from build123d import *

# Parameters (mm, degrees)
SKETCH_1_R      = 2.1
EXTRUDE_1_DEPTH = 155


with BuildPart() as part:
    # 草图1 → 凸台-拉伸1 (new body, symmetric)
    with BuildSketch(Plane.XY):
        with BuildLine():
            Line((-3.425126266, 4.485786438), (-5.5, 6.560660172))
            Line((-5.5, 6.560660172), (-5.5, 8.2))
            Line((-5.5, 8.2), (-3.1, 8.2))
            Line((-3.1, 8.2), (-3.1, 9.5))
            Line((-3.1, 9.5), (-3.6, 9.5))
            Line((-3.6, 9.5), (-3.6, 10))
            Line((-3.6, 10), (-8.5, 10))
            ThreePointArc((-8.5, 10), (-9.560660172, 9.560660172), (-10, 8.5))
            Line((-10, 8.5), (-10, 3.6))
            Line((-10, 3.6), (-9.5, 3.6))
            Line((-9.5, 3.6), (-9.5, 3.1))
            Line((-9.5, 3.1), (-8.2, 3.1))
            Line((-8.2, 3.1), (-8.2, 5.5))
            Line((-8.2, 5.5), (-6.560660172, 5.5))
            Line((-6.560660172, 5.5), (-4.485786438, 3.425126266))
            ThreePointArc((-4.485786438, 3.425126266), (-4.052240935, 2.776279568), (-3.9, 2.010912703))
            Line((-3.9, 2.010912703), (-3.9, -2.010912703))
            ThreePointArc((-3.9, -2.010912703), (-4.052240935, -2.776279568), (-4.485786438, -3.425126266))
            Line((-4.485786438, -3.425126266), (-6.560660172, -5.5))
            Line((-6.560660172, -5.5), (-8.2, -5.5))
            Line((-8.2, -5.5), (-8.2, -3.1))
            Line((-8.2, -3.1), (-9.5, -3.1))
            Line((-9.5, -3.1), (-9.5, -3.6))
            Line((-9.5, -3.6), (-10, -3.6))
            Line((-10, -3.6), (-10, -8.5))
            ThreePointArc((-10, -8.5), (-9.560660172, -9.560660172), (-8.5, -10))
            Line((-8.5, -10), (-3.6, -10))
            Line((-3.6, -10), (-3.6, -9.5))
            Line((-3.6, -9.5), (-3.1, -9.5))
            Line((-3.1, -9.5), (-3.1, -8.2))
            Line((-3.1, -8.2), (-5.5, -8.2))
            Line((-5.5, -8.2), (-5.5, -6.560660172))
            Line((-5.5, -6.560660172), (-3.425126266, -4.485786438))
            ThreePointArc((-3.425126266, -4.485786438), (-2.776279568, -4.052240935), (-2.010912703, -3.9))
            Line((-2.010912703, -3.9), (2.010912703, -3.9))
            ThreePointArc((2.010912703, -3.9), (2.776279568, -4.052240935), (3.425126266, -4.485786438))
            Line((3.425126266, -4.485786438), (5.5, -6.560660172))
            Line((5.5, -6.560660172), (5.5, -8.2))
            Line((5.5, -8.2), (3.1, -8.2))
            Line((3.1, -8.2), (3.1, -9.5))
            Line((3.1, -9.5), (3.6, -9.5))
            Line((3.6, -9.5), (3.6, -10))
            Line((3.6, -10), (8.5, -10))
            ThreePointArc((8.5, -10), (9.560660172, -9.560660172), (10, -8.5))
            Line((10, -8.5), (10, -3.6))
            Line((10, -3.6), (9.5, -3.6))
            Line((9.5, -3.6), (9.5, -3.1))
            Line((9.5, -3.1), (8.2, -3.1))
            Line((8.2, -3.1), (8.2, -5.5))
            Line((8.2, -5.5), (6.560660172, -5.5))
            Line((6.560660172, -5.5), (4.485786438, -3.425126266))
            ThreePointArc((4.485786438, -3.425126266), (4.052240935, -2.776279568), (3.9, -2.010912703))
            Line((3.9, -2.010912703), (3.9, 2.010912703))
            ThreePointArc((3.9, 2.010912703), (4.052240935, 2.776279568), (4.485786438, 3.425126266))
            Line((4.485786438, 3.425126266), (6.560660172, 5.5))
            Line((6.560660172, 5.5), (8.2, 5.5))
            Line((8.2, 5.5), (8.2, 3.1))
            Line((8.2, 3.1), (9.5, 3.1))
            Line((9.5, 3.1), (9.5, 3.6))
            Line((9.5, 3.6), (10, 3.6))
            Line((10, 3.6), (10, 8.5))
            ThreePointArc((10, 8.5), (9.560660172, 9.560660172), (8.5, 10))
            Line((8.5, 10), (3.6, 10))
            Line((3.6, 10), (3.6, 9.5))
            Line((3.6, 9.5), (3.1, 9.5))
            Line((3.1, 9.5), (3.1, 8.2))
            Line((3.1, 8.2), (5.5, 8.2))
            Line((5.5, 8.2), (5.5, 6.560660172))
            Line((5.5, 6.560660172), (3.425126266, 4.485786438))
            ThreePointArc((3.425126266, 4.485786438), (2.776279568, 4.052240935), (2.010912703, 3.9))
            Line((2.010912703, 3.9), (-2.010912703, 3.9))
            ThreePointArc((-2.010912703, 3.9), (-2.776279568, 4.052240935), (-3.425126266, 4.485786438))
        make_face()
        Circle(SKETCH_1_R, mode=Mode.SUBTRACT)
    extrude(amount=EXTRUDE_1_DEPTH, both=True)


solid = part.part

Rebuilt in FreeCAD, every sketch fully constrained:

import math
import FreeCAD as App
import Part
import Sketcher

doc = App.newDocument("Part")
body = doc.addObject("PartDesign::Body", "Body")

# Sketch on XY plane
sketch1 = body.newObject("Sketcher::SketchObject", "Sketch")
sketch1.AttachmentSupport = (doc.getObject("XY_Plane"), [""])
sketch1.MapMode = "FlatFace"
sketch1.addGeometry([
    Part.LineSegment(App.Vector(-3.4, 4.5, 0), App.Vector(-5.5, 6.6, 0)),  # 0
    Part.LineSegment(App.Vector(-5.5, 6.6, 0), App.Vector(-5.5, 8.2, 0)),  # 1
    Part.LineSegment(App.Vector(-5.5, 8.2, 0), App.Vector(-3.1, 8.2, 0)),  # 2
    Part.LineSegment(App.Vector(-3.1, 8.2, 0), App.Vector(-3.1, 9.5, 0)),  # 3
    Part.LineSegment(App.Vector(-3.1, 9.5, 0), App.Vector(-3.6, 9.5, 0)),  # 4
    Part.LineSegment(App.Vector(-3.6, 9.5, 0), App.Vector(-3.6, 10, 0)),  # 5
    Part.LineSegment(App.Vector(-3.6, 10, 0), App.Vector(-8.5, 10, 0)),  # 6
    Part.ArcOfCircle(Part.Circle(App.Vector(-8.5, 8.5, 0), App.Vector(0, 0, 1), 1.5), math.radians(90), math.radians(180)),  # 7
    Part.LineSegment(App.Vector(-10, 8.5, 0), App.Vector(-10, 3.6, 0)),  # 8
    Part.LineSegment(App.Vector(-10, 3.6, 0), App.Vector(-9.5, 3.6, 0)),  # 9
    Part.LineSegment(App.Vector(-9.5, 3.6, 0), App.Vector(-9.5, 3.1, 0)),  # 10
    Part.LineSegment(App.Vector(-9.5, 3.1, 0), App.Vector(-8.2, 3.1, 0)),  # 11
    Part.LineSegment(App.Vector(-8.2, 3.1, 0), App.Vector(-8.2, 5.5, 0)),  # 12
    Part.LineSegment(App.Vector(-8.2, 5.5, 0), App.Vector(-6.6, 5.5, 0)),  # 13
    Part.LineSegment(App.Vector(-6.6, 5.5, 0), App.Vector(-4.5, 3.4, 0)),  # 14
    Part.ArcOfCircle(Part.Circle(App.Vector(-5.9, 2, 0), App.Vector(0, 0, 1), 2), math.radians(0), math.radians(45)),  # 15
    Part.LineSegment(App.Vector(-3.9, 2, 0), App.Vector(-3.9, -2, 0)),  # 16
    Part.ArcOfCircle(Part.Circle(App.Vector(-5.9, -2, 0), App.Vector(0, 0, 1), 2), math.radians(-45), math.radians(0)),  # 17
    Part.LineSegment(App.Vector(-4.5, -3.4, 0), App.Vector(-6.6, -5.5, 0)),  # 18
    Part.LineSegment(App.Vector(-6.6, -5.5, 0), App.Vector(-8.2, -5.5, 0)),  # 19
    Part.LineSegment(App.Vector(-8.2, -5.5, 0), App.Vector(-8.2, -3.1, 0)),  # 20
    Part.LineSegment(App.Vector(-8.2, -3.1, 0), App.Vector(-9.5, -3.1, 0)),  # 21
    Part.LineSegment(App.Vector(-9.5, -3.1, 0), App.Vector(-9.5, -3.6, 0)),  # 22
    Part.LineSegment(App.Vector(-9.5, -3.6, 0), App.Vector(-10, -3.6, 0)),  # 23
    Part.LineSegment(App.Vector(-10, -3.6, 0), App.Vector(-10, -8.5, 0)),  # 24
    Part.ArcOfCircle(Part.Circle(App.Vector(-8.5, -8.5, 0), App.Vector(0, 0, 1), 1.5), math.radians(180), math.radians(270)),  # 25
    Part.LineSegment(App.Vector(-8.5, -10, 0), App.Vector(-3.6, -10, 0)),  # 26
    Part.LineSegment(App.Vector(-3.6, -10, 0), App.Vector(-3.6, -9.5, 0)),  # 27
    Part.LineSegment(App.Vector(-3.6, -9.5, 0), App.Vector(-3.1, -9.5, 0)),  # 28
    Part.LineSegment(App.Vector(-3.1, -9.5, 0), App.Vector(-3.1, -8.2, 0)),  # 29
    Part.LineSegment(App.Vector(-3.1, -8.2, 0), App.Vector(-5.5, -8.2, 0)),  # 30
    Part.LineSegment(App.Vector(-5.5, -8.2, 0), App.Vector(-5.5, -6.6, 0)),  # 31
    Part.LineSegment(App.Vector(-5.5, -6.6, 0), App.Vector(-3.4, -4.5, 0)),  # 32
    Part.ArcOfCircle(Part.Circle(App.Vector(-2, -5.9, 0), App.Vector(0, 0, 1), 2), math.radians(90), math.radians(135)),  # 33
    Part.LineSegment(App.Vector(-2, -3.9, 0), App.Vector(2, -3.9, 0)),  # 34
    Part.ArcOfCircle(Part.Circle(App.Vector(2, -5.9, 0), App.Vector(0, 0, 1), 2), math.radians(45), math.radians(90)),  # 35
    Part.LineSegment(App.Vector(3.4, -4.5, 0), App.Vector(5.5, -6.6, 0)),  # 36
    Part.LineSegment(App.Vector(5.5, -6.6, 0), App.Vector(5.5, -8.2, 0)),  # 37
    Part.LineSegment(App.Vector(5.5, -8.2, 0), App.Vector(3.1, -8.2, 0)),  # 38
    Part.LineSegment(App.Vector(3.1, -8.2, 0), App.Vector(3.1, -9.5, 0)),  # 39
    Part.LineSegment(App.Vector(3.1, -9.5, 0), App.Vector(3.6, -9.5, 0)),  # 40
    Part.LineSegment(App.Vector(3.6, -9.5, 0), App.Vector(3.6, -10, 0)),  # 41
    Part.LineSegment(App.Vector(3.6, -10, 0), App.Vector(8.5, -10, 0)),  # 42
    Part.ArcOfCircle(Part.Circle(App.Vector(8.5, -8.5, 0), App.Vector(0, 0, 1), 1.5), math.radians(-90), math.radians(0)),  # 43
    Part.LineSegment(App.Vector(10, -8.5, 0), App.Vector(10, -3.6, 0)),  # 44
    Part.LineSegment(App.Vector(10, -3.6, 0), App.Vector(9.5, -3.6, 0)),  # 45
    Part.LineSegment(App.Vector(9.5, -3.6, 0), App.Vector(9.5, -3.1, 0)),  # 46
    Part.LineSegment(App.Vector(9.5, -3.1, 0), App.Vector(8.2, -3.1, 0)),  # 47
    Part.LineSegment(App.Vector(8.2, -3.1, 0), App.Vector(8.2, -5.5, 0)),  # 48
    Part.LineSegment(App.Vector(8.2, -5.5, 0), App.Vector(6.6, -5.5, 0)),  # 49
    Part.LineSegment(App.Vector(6.6, -5.5, 0), App.Vector(4.5, -3.4, 0)),  # 50
    Part.ArcOfCircle(Part.Circle(App.Vector(5.9, -2, 0), App.Vector(0, 0, 1), 2), math.radians(180), math.radians(225)),  # 51
    Part.LineSegment(App.Vector(3.9, -2, 0), App.Vector(3.9, 2, 0)),  # 52
    Part.ArcOfCircle(Part.Circle(App.Vector(5.9, 2, 0), App.Vector(0, 0, 1), 2), math.radians(135), math.radians(180)),  # 53
    Part.LineSegment(App.Vector(4.5, 3.4, 0), App.Vector(6.6, 5.5, 0)),  # 54
    Part.LineSegment(App.Vector(6.6, 5.5, 0), App.Vector(8.2, 5.5, 0)),  # 55
    Part.LineSegment(App.Vector(8.2, 5.5, 0), App.Vector(8.2, 3.1, 0)),  # 56
    Part.LineSegment(App.Vector(8.2, 3.1, 0), App.Vector(9.5, 3.1, 0)),  # 57
    Part.LineSegment(App.Vector(9.5, 3.1, 0), App.Vector(9.5, 3.6, 0)),  # 58
    Part.LineSegment(App.Vector(9.5, 3.6, 0), App.Vector(10, 3.6, 0)),  # 59
    Part.LineSegment(App.Vector(10, 3.6, 0), App.Vector(10, 8.5, 0)),  # 60
    Part.ArcOfCircle(Part.Circle(App.Vector(8.5, 8.5, 0), App.Vector(0, 0, 1), 1.5), math.radians(0), math.radians(90)),  # 61
    Part.LineSegment(App.Vector(8.5, 10, 0), App.Vector(3.6, 10, 0)),  # 62
    Part.LineSegment(App.Vector(3.6, 10, 0), App.Vector(3.6, 9.5, 0)),  # 63
    Part.LineSegment(App.Vector(3.6, 9.5, 0), App.Vector(3.1, 9.5, 0)),  # 64
    Part.LineSegment(App.Vector(3.1, 9.5, 0), App.Vector(3.1, 8.2, 0)),  # 65
    Part.LineSegment(App.Vector(3.1, 8.2, 0), App.Vector(5.5, 8.2, 0)),  # 66
    Part.LineSegment(App.Vector(5.5, 8.2, 0), App.Vector(5.5, 6.6, 0)),  # 67
    Part.LineSegment(App.Vector(5.5, 6.6, 0), App.Vector(3.4, 4.5, 0)),  # 68
    Part.ArcOfCircle(Part.Circle(App.Vector(2, 5.9, 0), App.Vector(0, 0, 1), 2), math.radians(-90), math.radians(-45)),  # 69
    Part.LineSegment(App.Vector(2, 3.9, 0), App.Vector(-2, 3.9, 0)),  # 70
    Part.ArcOfCircle(Part.Circle(App.Vector(-2, 5.9, 0), App.Vector(0, 0, 1), 2), math.radians(-135), math.radians(-90)),  # 71
    Part.Circle(App.Vector(0, 0, 0), App.Vector(0, 0, 1), 2.1),  # 72
], False)
sketch1.addConstraint([
    Sketcher.Constraint("Coincident", 0, 2, 1, 1),
    Sketcher.Constraint("Coincident", 1, 2, 2, 1),
    Sketcher.Constraint("Coincident", 2, 2, 3, 1),
    Sketcher.Constraint("Coincident", 3, 2, 4, 1),
    Sketcher.Constraint("Coincident", 4, 2, 5, 1),
    Sketcher.Constraint("Coincident", 5, 2, 6, 1),
    Sketcher.Constraint("Tangent", 6, 2, 7, 1),
    Sketcher.Constraint("Tangent", 7, 2, 8, 1),
    Sketcher.Constraint("Coincident", 8, 2, 9, 1),
    Sketcher.Constraint("Coincident", 9, 2, 10, 1),
    Sketcher.Constraint("Coincident", 10, 2, 11, 1),
    Sketcher.Constraint("Coincident", 11, 2, 12, 1),
    Sketcher.Constraint("Coincident", 12, 2, 13, 1),
    Sketcher.Constraint("Coincident", 13, 2, 14, 1),
    Sketcher.Constraint("Tangent", 14, 2, 15, 2),
    Sketcher.Constraint("Tangent", 15, 1, 16, 1),
    Sketcher.Constraint("Tangent", 16, 2, 17, 2),
    Sketcher.Constraint("Tangent", 17, 1, 18, 1),
    Sketcher.Constraint("Coincident", 18, 2, 19, 1),
    Sketcher.Constraint("Coincident", 19, 2, 20, 1),
    Sketcher.Constraint("Coincident", 20, 2, 21, 1),
    Sketcher.Constraint("Coincident", 21, 2, 22, 1),
    Sketcher.Constraint("Coincident", 22, 2, 23, 1),
    Sketcher.Constraint("Coincident", 23, 2, 24, 1),
    Sketcher.Constraint("Tangent", 24, 2, 25, 1),
    Sketcher.Constraint("Tangent", 25, 2, 26, 1),
    Sketcher.Constraint("Coincident", 26, 2, 27, 1),
    Sketcher.Constraint("Coincident", 27, 2, 28, 1),
    Sketcher.Constraint("Coincident", 28, 2, 29, 1),
    Sketcher.Constraint("Coincident", 29, 2, 30, 1),
    Sketcher.Constraint("Coincident", 30, 2, 31, 1),
    Sketcher.Constraint("Coincident", 31, 2, 32, 1),
    Sketcher.Constraint("Tangent", 32, 2, 33, 2),
    Sketcher.Constraint("Tangent", 33, 1, 34, 1),
    Sketcher.Constraint("Tangent", 34, 2, 35, 2),
    Sketcher.Constraint("Tangent", 35, 1, 36, 1),
    Sketcher.Constraint("Coincident", 36, 2, 37, 1),
    Sketcher.Constraint("Coincident", 37, 2, 38, 1),
    Sketcher.Constraint("Coincident", 38, 2, 39, 1),
    Sketcher.Constraint("Coincident", 39, 2, 40, 1),
    Sketcher.Constraint("Coincident", 40, 2, 41, 1),
    Sketcher.Constraint("Coincident", 41, 2, 42, 1),
    Sketcher.Constraint("Tangent", 42, 2, 43, 1),
    Sketcher.Constraint("Tangent", 43, 2, 44, 1),
    Sketcher.Constraint("Coincident", 44, 2, 45, 1),
    Sketcher.Constraint("Coincident", 45, 2, 46, 1),
    Sketcher.Constraint("Coincident", 46, 2, 47, 1),
    Sketcher.Constraint("Coincident", 47, 2, 48, 1),
    Sketcher.Constraint("Coincident", 48, 2, 49, 1),
    Sketcher.Constraint("Coincident", 49, 2, 50, 1),
    Sketcher.Constraint("Tangent", 50, 2, 51, 2),
    Sketcher.Constraint("Tangent", 51, 1, 52, 1),
    Sketcher.Constraint("Tangent", 52, 2, 53, 2),
    Sketcher.Constraint("Tangent", 53, 1, 54, 1),
    Sketcher.Constraint("Coincident", 54, 2, 55, 1),
    Sketcher.Constraint("Coincident", 55, 2, 56, 1),
    Sketcher.Constraint("Coincident", 56, 2, 57, 1),
    Sketcher.Constraint("Coincident", 57, 2, 58, 1),
    Sketcher.Constraint("Coincident", 58, 2, 59, 1),
    Sketcher.Constraint("Coincident", 59, 2, 60, 1),
    Sketcher.Constraint("Tangent", 60, 2, 61, 1),
    Sketcher.Constraint("Tangent", 61, 2, 62, 1),
    Sketcher.Constraint("Coincident", 62, 2, 63, 1),
    Sketcher.Constraint("Coincident", 63, 2, 64, 1),
    Sketcher.Constraint("Coincident", 64, 2, 65, 1),
    Sketcher.Constraint("Coincident", 65, 2, 66, 1),
    Sketcher.Constraint("Coincident", 66, 2, 67, 1),
    Sketcher.Constraint("Coincident", 67, 2, 68, 1),
    Sketcher.Constraint("Tangent", 68, 2, 69, 2),
    Sketcher.Constraint("Tangent", 69, 1, 70, 1),
    Sketcher.Constraint("Tangent", 70, 2, 71, 2),
    Sketcher.Constraint("Tangent", 71, 1, 0, 1),
    Sketcher.Constraint("Vertical", 1),
    Sketcher.Constraint("Horizontal", 2),
    Sketcher.Constraint("Vertical", 3),
    Sketcher.Constraint("Horizontal", 4),
    Sketcher.Constraint("Vertical", 5),
    Sketcher.Constraint("Horizontal", 6),
    Sketcher.Constraint("Vertical", 8),
    Sketcher.Constraint("Horizontal", 9),
    Sketcher.Constraint("Vertical", 10),
    Sketcher.Constraint("Horizontal", 11),
    Sketcher.Constraint("Vertical", 12),
    Sketcher.Constraint("Horizontal", 13),
    Sketcher.Constraint("Vertical", 16),
    Sketcher.Constraint("Horizontal", 19),
    Sketcher.Constraint("Vertical", 20),
    Sketcher.Constraint("Horizontal", 21),
    Sketcher.Constraint("Vertical", 22),
    Sketcher.Constraint("Horizontal", 23),
    Sketcher.Constraint("Vertical", 24),
    Sketcher.Constraint("Horizontal", 26),
    Sketcher.Constraint("Vertical", 27),
    Sketcher.Constraint("Horizontal", 28),
    Sketcher.Constraint("Vertical", 29),
    Sketcher.Constraint("Horizontal", 30),
    Sketcher.Constraint("Vertical", 31),
    Sketcher.Constraint("Horizontal", 34),
    Sketcher.Constraint("Vertical", 37),
    Sketcher.Constraint("Horizontal", 38),
    Sketcher.Constraint("Vertical", 39),
    Sketcher.Constraint("Horizontal", 40),
    Sketcher.Constraint("Vertical", 41),
    Sketcher.Constraint("Horizontal", 42),
    Sketcher.Constraint("Vertical", 44),
    Sketcher.Constraint("Horizontal", 45),
    Sketcher.Constraint("Vertical", 46),
    Sketcher.Constraint("Horizontal", 47),
    Sketcher.Constraint("Vertical", 48),
    Sketcher.Constraint("Horizontal", 49),
    Sketcher.Constraint("Vertical", 52),
    Sketcher.Constraint("Horizontal", 55),
    Sketcher.Constraint("Vertical", 56),
    Sketcher.Constraint("Horizontal", 57),
    Sketcher.Constraint("Vertical", 58),
    Sketcher.Constraint("Horizontal", 59),
    Sketcher.Constraint("Vertical", 60),
    Sketcher.Constraint("Horizontal", 62),
    Sketcher.Constraint("Vertical", 63),
    Sketcher.Constraint("Horizontal", 64),
    Sketcher.Constraint("Vertical", 65),
    Sketcher.Constraint("Horizontal", 66),
    Sketcher.Constraint("Vertical", 67),
    Sketcher.Constraint("Horizontal", 70),
    Sketcher.Constraint("Coincident", 72, 3, -1, 1),
    Sketcher.Constraint("Equal", 15, 17),
    Sketcher.Constraint("Equal", 7, 25),
    Sketcher.Constraint("Equal", 17, 33),
    Sketcher.Constraint("Equal", 33, 35),
    Sketcher.Constraint("Equal", 25, 43),
    Sketcher.Constraint("Equal", 35, 51),
    Sketcher.Constraint("Equal", 51, 53),
    Sketcher.Constraint("Equal", 43, 61),
    Sketcher.Constraint("Equal", 53, 69),
    Sketcher.Constraint("Equal", 69, 71),
    Sketcher.Constraint("Symmetric", 7, 3, 43, 3, -1, 1),
    Sketcher.Constraint("Symmetric", 15, 3, 51, 3, -1, 1),
    Sketcher.Constraint("Symmetric", 25, 3, 61, 3, -1, 1),
    Sketcher.Constraint("Symmetric", 33, 3, 69, 3, -1, 1),
    Sketcher.Constraint("Symmetric", 0, 2, 36, 2, -1, 1),
    Sketcher.Constraint("Symmetric", 2, 2, 38, 2, -1, 1),
    Sketcher.Constraint("Symmetric", 4, 2, 40, 2, -1, 1),
    Sketcher.Constraint("Symmetric", 9, 2, 45, 2, -1, 1),
    Sketcher.Constraint("Symmetric", 11, 2, 47, 2, -1, 1),
    Sketcher.Constraint("Symmetric", 13, 2, 49, 2, -1, 1),
    Sketcher.Constraint("Symmetric", 17, 1, 53, 1, -1, 1),
    Sketcher.Constraint("Symmetric", 19, 2, 55, 2, -1, 1),
    Sketcher.Constraint("Symmetric", 21, 2, 57, 2, -1, 1),
    Sketcher.Constraint("Symmetric", 27, 2, 63, 2, -1, 1),
    Sketcher.Constraint("Symmetric", 29, 2, 65, 2, -1, 1),
    Sketcher.Constraint("Symmetric", 31, 2, 67, 2, -1, 1),
    Sketcher.Constraint("Symmetric", 25, 3, 43, 3, -2),
    Sketcher.Constraint("Symmetric", 32, 2, 35, 1, -2),
    Sketcher.Constraint("Symmetric", 30, 2, 37, 2, -2),
    Sketcher.Constraint("Symmetric", 28, 2, 39, 2, -2),
    Sketcher.Constraint("Symmetric", 22, 2, 45, 2, -2),
    Sketcher.Constraint("Symmetric", 20, 2, 47, 2, -2),
    Sketcher.Constraint("Symmetric", 18, 2, 49, 2, -2),
    Sketcher.Constraint("Parallel", 0, 14),
    Sketcher.Constraint("Perpendicular", 14, 18),
    Sketcher.Constraint("Parallel", 18, 32),
    Sketcher.Constraint("Perpendicular", 32, 36),
    Sketcher.Constraint("Horizontal", 9, 2, 58, 2),
    Sketcher.Constraint("Vertical", 5, 2, 26, 2),
    Sketcher.Constraint("Equal", 4, 9),
    Sketcher.Constraint("Equal", 55, 1),
    Sketcher.Constraint("Equal", 57, 3),
    Sketcher.Constraint("Equal", 64, 5),
    Sketcher.Constraint("Equal", 62, 8),
    Sketcher.Constraint("Equal", 5, 10),
    Sketcher.Constraint("Equal", 66, 12),
    Sketcher.Constraint("Equal", 70, 16),
    Sketcher.Constraint("Equal", 0, 14),
    Sketcher.Constraint("Radius", 15, 2.0),
    Sketcher.Constraint("Diameter", 72, 4.2),
    Sketcher.Constraint("Radius", 7, 1.5),
    Sketcher.Constraint("DistanceX", 2, 1, 2, 2, 2.4),
    Sketcher.Constraint("DistanceX", 4, 2, 4, 1, 0.5),
    Sketcher.Constraint("DistanceX", 6, 2, 6, 1, 4.9),
    Sketcher.Constraint("DistanceX", 11, 1, 11, 2, 1.3),
    Sketcher.Constraint("DistanceY", -1, 1, 5, 2, 10.0),
    Sketcher.Constraint("DistanceX", 15, 3, -1, 1, 5.9),
    Sketcher.Constraint("DistanceX", 13, 1, 13, 2, 1.63934),
])
pad1 = body.newObject("PartDesign::Pad", "Pad")
pad1.Profile = sketch1
pad1.Length = 310
pad1.Midplane = True

doc.recompute()
